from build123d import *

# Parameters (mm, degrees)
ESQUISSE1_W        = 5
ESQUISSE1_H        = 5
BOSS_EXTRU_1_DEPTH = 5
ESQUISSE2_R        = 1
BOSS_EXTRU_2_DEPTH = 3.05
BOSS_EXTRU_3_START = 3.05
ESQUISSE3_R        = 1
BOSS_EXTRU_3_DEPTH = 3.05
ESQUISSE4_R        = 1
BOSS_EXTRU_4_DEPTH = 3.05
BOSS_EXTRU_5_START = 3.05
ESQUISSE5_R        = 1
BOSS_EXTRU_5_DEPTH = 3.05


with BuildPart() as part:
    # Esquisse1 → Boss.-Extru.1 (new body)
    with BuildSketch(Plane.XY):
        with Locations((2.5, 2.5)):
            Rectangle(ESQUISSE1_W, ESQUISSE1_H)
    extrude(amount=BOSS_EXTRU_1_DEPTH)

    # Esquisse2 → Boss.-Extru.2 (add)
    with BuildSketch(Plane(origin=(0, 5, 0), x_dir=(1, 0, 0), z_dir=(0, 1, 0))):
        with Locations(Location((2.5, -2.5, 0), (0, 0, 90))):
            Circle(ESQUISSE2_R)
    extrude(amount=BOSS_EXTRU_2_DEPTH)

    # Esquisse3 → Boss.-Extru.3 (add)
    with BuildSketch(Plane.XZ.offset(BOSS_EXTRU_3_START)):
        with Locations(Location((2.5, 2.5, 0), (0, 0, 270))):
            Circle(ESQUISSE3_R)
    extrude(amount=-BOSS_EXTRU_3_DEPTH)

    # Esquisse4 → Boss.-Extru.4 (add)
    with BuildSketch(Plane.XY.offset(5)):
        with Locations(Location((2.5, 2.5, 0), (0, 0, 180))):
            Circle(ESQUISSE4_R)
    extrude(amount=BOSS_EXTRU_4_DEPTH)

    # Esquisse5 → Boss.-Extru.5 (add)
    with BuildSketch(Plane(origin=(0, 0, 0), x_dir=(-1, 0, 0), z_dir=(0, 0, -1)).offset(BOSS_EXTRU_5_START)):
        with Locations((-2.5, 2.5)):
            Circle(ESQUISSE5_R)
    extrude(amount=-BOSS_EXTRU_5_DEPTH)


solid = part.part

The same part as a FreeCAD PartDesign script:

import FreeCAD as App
import Part
import Sketcher
from FreeCAD import Vector


def add_polygon(sketch, points):
    """Adds a closed chain of lines whose ends are joined by coincident constraints."""
    first, n = sketch.GeometryCount, len(points)
    for a, b in zip(points, points[1:] + points[:1]):
        sketch.addGeometry(Part.LineSegment(App.Vector(*a, 0), App.Vector(*b, 0)), False)
    for i in range(n):
        sketch.addConstraint(Sketcher.Constraint("Coincident", first + i, 2, first + (i + 1) % n, 1))

doc = App.newDocument("Part")
body = doc.addObject("PartDesign::Body", "Body")

sketch1 = body.newObject("Sketcher::SketchObject", "Sketch")
sketch1.AttachmentSupport = (doc.getObject("XY_Plane"), [""])
sketch1.MapMode = "FlatFace"
add_polygon(sketch1, [(0, 5), (0, 0), (5, 0), (5, 5)])
sketch1.addConstraint([
    Sketcher.Constraint("Vertical", 0),
    Sketcher.Constraint("Horizontal", 1),
    Sketcher.Constraint("Vertical", 2),
    Sketcher.Constraint("Horizontal", 3),
    Sketcher.Constraint("Coincident", 0, 2, -1, 1),
    Sketcher.Constraint("Equal", 3, 0),
    Sketcher.Constraint("DistanceX", 1, 1, 1, 2, 5.0),
])
pad1 = body.newObject("PartDesign::Pad", "Pad")
pad1.Profile = sketch1
pad1.Length = 5

sketch2 = body.newObject("Sketcher::SketchObject", "Sketch001")
sketch2.AttachmentSupport = (doc.getObject("XZ_Plane"), [""])
sketch2.MapMode = "FlatFace"
sketch2.AttachmentOffset = App.Placement(Vector(0, 0, -5), App.Rotation())
sketch2.addGeometry(Part.Circle(Vector(2.5, 2.5, 0), Vector(0, 0, 1), 1), False)
sketch2.addConstraint([
    Sketcher.Constraint("Diameter", 0, 2.0),
    Sketcher.Constraint("DistanceX", -1, 1, 0, 3, 2.5),
    Sketcher.Constraint("DistanceY", -1, 1, 0, 3, 2.5),
])
pad2 = body.newObject("PartDesign::Pad", "Pad001")
pad2.Profile = sketch2
pad2.Length = 3.05
pad2.Reversed = True

sketch3 = body.newObject("Sketcher::SketchObject", "Sketch002")
sketch3.AttachmentSupport = (doc.getObject("XZ_Plane"), [""])
sketch3.MapMode = "FlatFace"
sketch3.AttachmentOffset = App.Placement(Vector(0, 0, 3.05), App.Rotation())
sketch3.addGeometry(Part.Circle(Vector(2.5, 2.5, 0), Vector(0, 0, 1), 1), False)
sketch3.addConstraint([
    Sketcher.Constraint("Diameter", 0, 2.0),
    Sketcher.Constraint("DistanceX", -1, 1, 0, 3, 2.5),
    Sketcher.Constraint("DistanceY", -1, 1, 0, 3, 2.5),
])
pad3 = body.newObject("PartDesign::Pad", "Pad002")
pad3.Profile = sketch3
pad3.Length = 3.05
pad3.Reversed = True

sketch4 = body.newObject("Sketcher::SketchObject", "Sketch003")
sketch4.AttachmentSupport = (doc.getObject("XY_Plane"), [""])
sketch4.MapMode = "FlatFace"
sketch4.AttachmentOffset = App.Placement(Vector(0, 0, 5), App.Rotation())
sketch4.addGeometry(Part.Circle(Vector(2.5, 2.5, 0), Vector(0, 0, 1), 1), False)
sketch4.addConstraint([
    Sketcher.Constraint("Diameter", 0, 2.0),
    Sketcher.Constraint("DistanceX", -1, 1, 0, 3, 2.5),
    Sketcher.Constraint("DistanceY", -1, 1, 0, 3, 2.5),
])
pad4 = body.newObject("PartDesign::Pad", "Pad003")
pad4.Profile = sketch4
pad4.Length = 3.05

sketch5 = body.newObject("Sketcher::SketchObject", "Sketch004")
sketch5.AttachmentSupport = (doc.getObject("XY_Plane"), [""])
sketch5.MapMode = "FlatFace"
sketch5.AttachmentOffset = App.Placement(Vector(0, 0, -3.05), App.Rotation())
sketch5.addGeometry(Part.Circle(Vector(2.5, 2.5, 0), Vector(0, 0, 1), 1), False)
sketch5.addConstraint([
    Sketcher.Constraint("Diameter", 0, 2.0),
    Sketcher.Constraint("DistanceX", -1, 1, 0, 3, 2.5),
    Sketcher.Constraint("DistanceY", -1, 1, 0, 3, 2.5),
])
pad5 = body.newObject("PartDesign::Pad", "Pad004")
pad5.Profile = sketch5
pad5.Length = 3.05

doc.recompute()
